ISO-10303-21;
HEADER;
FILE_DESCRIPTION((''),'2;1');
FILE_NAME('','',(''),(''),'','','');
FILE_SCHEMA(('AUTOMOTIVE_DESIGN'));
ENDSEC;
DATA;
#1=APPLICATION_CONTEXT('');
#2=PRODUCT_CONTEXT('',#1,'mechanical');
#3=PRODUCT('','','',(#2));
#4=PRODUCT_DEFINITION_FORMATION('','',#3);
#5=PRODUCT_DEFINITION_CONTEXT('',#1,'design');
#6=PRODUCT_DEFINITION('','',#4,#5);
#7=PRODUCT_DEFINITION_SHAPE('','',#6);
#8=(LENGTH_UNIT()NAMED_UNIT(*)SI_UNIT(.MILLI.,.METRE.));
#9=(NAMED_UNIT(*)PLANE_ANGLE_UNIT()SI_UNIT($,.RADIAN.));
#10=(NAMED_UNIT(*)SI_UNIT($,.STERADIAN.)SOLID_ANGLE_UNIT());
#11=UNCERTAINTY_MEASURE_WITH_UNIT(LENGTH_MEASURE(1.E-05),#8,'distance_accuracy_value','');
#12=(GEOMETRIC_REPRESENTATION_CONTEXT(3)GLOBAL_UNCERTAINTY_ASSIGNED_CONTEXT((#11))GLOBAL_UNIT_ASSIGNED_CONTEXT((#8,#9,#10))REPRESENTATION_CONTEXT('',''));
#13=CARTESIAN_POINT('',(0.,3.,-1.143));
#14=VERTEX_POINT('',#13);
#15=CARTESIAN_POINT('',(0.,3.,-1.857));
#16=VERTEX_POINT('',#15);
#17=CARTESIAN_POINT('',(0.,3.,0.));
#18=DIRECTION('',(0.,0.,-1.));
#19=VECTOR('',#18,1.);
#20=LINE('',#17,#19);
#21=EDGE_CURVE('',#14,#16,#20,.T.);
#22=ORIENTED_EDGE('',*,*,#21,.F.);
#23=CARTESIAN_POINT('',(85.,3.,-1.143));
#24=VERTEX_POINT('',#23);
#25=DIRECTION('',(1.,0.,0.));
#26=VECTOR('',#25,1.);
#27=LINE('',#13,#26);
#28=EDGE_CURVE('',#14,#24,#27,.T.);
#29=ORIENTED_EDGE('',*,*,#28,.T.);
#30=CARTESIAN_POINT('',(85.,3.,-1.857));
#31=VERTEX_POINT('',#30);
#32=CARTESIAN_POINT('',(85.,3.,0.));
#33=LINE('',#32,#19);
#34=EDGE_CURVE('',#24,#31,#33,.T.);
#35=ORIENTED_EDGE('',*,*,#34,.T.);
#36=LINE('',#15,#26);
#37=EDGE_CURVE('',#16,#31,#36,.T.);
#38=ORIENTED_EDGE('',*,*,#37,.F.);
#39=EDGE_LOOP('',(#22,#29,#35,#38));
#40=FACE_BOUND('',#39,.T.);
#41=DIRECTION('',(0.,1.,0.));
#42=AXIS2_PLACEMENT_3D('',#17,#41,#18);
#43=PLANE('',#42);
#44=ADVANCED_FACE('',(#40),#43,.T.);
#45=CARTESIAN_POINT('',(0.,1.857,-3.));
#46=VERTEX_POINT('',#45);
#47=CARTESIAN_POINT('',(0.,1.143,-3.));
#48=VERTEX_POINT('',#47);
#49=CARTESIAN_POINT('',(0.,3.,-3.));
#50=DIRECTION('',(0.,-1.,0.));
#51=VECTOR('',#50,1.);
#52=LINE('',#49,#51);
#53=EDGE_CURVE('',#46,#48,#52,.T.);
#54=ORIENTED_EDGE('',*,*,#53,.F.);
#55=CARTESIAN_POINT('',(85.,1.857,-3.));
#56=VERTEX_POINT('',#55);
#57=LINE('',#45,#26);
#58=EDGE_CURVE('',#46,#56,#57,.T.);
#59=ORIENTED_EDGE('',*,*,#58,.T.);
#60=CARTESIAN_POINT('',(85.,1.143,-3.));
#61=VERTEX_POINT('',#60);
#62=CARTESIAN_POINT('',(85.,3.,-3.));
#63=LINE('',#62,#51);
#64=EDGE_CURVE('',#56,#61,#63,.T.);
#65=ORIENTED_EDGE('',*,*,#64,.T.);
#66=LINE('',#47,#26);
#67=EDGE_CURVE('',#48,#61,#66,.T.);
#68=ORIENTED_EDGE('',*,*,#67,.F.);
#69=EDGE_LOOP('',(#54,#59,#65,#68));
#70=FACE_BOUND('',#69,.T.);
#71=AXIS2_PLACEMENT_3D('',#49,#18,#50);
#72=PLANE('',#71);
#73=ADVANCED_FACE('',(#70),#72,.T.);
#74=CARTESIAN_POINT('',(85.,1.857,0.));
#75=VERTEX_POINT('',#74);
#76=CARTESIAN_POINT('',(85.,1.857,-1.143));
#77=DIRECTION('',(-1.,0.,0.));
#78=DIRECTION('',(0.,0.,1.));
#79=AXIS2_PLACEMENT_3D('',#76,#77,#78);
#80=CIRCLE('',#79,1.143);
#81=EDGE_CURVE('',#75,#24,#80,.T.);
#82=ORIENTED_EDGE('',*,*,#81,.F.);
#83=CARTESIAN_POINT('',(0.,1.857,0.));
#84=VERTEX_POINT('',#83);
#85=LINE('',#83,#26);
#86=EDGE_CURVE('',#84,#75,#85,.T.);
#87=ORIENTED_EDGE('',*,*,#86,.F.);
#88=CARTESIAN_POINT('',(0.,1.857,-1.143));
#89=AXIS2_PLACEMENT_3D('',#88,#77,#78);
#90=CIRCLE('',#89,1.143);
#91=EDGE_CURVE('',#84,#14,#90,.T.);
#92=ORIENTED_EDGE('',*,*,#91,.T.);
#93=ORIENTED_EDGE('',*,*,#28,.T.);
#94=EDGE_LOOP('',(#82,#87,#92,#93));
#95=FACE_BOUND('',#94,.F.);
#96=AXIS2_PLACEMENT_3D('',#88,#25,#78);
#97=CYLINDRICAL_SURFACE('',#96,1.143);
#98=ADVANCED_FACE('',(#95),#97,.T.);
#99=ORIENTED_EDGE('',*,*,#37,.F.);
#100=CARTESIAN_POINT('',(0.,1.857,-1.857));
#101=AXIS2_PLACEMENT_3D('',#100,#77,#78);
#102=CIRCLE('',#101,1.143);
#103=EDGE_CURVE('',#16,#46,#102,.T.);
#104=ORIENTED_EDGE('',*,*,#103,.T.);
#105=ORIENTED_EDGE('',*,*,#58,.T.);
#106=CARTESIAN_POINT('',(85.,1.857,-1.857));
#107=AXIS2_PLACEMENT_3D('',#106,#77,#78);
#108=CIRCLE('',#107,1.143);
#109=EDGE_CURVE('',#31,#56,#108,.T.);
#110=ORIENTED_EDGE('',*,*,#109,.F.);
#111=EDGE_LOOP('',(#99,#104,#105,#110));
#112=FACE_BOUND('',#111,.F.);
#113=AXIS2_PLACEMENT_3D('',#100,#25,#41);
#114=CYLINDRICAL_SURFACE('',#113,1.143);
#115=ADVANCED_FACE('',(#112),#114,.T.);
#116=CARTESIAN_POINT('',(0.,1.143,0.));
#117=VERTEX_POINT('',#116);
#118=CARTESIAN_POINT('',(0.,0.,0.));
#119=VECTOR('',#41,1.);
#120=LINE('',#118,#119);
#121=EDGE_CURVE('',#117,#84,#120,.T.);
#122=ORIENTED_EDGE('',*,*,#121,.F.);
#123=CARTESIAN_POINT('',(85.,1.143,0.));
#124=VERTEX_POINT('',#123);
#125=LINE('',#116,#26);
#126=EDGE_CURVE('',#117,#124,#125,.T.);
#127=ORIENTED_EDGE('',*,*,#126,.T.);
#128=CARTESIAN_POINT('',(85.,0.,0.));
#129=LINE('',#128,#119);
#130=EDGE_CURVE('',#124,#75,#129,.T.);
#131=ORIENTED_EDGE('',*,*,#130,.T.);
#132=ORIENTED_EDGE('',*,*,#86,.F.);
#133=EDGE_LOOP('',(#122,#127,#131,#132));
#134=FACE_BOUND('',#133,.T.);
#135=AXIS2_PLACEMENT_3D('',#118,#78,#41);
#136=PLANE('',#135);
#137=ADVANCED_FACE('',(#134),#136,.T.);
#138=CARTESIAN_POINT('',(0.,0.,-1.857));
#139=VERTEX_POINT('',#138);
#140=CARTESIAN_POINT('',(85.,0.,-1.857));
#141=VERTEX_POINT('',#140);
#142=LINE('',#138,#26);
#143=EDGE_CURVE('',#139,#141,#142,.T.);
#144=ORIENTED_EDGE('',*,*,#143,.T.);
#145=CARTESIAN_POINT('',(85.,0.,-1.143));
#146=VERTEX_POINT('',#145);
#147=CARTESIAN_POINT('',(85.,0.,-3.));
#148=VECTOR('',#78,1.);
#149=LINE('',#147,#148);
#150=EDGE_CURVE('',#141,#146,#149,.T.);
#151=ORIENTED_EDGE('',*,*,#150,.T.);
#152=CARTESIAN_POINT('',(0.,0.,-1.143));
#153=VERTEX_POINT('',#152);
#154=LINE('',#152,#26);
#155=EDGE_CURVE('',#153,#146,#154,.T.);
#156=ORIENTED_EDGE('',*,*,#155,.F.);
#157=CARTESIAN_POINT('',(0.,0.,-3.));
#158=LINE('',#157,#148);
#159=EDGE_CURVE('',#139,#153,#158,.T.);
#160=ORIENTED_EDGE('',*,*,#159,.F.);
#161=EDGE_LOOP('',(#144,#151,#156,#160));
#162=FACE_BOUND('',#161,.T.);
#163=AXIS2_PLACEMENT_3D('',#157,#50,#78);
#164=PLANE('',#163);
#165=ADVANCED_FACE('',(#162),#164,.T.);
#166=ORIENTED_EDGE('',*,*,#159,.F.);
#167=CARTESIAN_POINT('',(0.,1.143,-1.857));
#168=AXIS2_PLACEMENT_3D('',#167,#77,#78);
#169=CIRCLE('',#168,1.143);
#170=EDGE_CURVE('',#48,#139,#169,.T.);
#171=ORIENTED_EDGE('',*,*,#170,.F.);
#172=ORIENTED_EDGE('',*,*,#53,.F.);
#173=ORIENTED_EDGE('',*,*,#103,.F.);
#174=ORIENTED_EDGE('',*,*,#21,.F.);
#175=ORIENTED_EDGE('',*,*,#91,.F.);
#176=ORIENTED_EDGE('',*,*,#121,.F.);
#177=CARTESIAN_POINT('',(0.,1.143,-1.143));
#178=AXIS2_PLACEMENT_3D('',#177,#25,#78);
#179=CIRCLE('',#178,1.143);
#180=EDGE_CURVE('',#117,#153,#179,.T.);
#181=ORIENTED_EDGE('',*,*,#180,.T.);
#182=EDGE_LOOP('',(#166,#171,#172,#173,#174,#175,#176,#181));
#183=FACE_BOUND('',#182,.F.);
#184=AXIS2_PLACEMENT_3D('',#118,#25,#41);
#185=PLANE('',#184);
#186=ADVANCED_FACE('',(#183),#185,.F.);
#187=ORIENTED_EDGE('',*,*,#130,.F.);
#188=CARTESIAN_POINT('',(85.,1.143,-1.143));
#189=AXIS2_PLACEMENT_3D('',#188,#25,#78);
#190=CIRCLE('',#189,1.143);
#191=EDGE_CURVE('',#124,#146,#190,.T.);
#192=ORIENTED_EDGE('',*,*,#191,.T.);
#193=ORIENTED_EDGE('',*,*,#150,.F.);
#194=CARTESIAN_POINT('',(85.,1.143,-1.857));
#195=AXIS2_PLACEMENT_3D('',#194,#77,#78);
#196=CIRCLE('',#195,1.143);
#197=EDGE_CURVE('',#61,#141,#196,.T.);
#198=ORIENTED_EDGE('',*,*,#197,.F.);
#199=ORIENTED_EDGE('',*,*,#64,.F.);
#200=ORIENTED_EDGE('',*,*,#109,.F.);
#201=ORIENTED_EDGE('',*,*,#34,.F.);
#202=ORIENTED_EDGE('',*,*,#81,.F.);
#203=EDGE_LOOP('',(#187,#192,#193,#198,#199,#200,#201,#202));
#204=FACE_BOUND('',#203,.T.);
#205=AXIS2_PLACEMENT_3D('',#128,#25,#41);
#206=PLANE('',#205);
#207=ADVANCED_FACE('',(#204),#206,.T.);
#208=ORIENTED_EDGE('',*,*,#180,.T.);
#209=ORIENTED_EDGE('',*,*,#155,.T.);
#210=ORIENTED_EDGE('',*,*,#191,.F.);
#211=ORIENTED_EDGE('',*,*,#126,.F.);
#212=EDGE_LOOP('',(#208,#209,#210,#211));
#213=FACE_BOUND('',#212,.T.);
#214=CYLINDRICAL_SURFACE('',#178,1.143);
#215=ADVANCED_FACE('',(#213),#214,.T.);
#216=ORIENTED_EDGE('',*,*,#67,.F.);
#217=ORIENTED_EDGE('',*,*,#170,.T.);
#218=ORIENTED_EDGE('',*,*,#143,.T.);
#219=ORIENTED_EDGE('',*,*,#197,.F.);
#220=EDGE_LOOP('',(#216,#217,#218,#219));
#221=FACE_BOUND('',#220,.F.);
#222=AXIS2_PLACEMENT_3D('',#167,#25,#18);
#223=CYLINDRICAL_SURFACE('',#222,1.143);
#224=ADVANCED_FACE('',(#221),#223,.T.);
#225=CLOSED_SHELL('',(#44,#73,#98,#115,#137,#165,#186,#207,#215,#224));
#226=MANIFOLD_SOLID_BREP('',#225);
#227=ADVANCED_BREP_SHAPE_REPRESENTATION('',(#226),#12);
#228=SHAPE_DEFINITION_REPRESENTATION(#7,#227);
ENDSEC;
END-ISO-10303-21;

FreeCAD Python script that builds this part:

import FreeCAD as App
import Part
import Sketcher
from FreeCAD import Vector


def edges_at(feature, points):
    """Names of the edges that pass closest to the given points."""
    edges = feature.Shape.Edges
    near = lambda p: min(range(len(edges)), key=lambda i: edges[i].distToShape(Part.Vertex(*p))[0])
    return sorted({f"Edge{near(p) + 1}" for p in points})


def add_polygon(sketch, points):
    """Adds a closed chain of lines whose ends are joined by coincident constraints."""
    first, n = sketch.GeometryCount, len(points)
    for a, b in zip(points, points[1:] + points[:1]):
        sketch.addGeometry(Part.LineSegment(App.Vector(*a, 0), App.Vector(*b, 0)), False)
    for i in range(n):
        sketch.addConstraint(Sketcher.Constraint("Coincident", first + i, 2, first + (i + 1) % n, 1))

doc = App.newDocument("Part")
body = doc.addObject("PartDesign::Body", "Body")

# Sketch on YZ plane
sketch1 = body.newObject("Sketcher::SketchObject", "Sketch")
sketch1.AttachmentSupport = (doc.getObject("YZ_Plane"), [""])
sketch1.MapMode = "FlatFace"
add_polygon(sketch1, [(3, 0), (0, 0), (0, -3), (3, -3)])  # lines 0-3
sketch1.addConstraint([
    Sketcher.Constraint("Horizontal", 0),
    Sketcher.Constraint("Vertical", 1),
    Sketcher.Constraint("Horizontal", 2),
    Sketcher.Constraint("Vertical", 3),
    Sketcher.Constraint("Coincident", 0, 2, -1, 1),
    Sketcher.Constraint("Equal", 2, 1),
    Sketcher.Constraint("DistanceX", 0, 2, 0, 1, 3.0),
])
pad1 = body.newObject("PartDesign::Pad", "Pad")
pad1.Profile = sketch1
pad1.Length = 85
doc.recompute()

fillet = body.newObject("PartDesign::Fillet", "Fillet")
fillet.Base = (pad1, edges_at(pad1, [
    (42.5, 3, 0),
    (42.5, 3, -3),
    (42.5, 0, 0),
    (42.5, 0, -3),
]))
fillet.Radius = 1.143

doc.recompute()
